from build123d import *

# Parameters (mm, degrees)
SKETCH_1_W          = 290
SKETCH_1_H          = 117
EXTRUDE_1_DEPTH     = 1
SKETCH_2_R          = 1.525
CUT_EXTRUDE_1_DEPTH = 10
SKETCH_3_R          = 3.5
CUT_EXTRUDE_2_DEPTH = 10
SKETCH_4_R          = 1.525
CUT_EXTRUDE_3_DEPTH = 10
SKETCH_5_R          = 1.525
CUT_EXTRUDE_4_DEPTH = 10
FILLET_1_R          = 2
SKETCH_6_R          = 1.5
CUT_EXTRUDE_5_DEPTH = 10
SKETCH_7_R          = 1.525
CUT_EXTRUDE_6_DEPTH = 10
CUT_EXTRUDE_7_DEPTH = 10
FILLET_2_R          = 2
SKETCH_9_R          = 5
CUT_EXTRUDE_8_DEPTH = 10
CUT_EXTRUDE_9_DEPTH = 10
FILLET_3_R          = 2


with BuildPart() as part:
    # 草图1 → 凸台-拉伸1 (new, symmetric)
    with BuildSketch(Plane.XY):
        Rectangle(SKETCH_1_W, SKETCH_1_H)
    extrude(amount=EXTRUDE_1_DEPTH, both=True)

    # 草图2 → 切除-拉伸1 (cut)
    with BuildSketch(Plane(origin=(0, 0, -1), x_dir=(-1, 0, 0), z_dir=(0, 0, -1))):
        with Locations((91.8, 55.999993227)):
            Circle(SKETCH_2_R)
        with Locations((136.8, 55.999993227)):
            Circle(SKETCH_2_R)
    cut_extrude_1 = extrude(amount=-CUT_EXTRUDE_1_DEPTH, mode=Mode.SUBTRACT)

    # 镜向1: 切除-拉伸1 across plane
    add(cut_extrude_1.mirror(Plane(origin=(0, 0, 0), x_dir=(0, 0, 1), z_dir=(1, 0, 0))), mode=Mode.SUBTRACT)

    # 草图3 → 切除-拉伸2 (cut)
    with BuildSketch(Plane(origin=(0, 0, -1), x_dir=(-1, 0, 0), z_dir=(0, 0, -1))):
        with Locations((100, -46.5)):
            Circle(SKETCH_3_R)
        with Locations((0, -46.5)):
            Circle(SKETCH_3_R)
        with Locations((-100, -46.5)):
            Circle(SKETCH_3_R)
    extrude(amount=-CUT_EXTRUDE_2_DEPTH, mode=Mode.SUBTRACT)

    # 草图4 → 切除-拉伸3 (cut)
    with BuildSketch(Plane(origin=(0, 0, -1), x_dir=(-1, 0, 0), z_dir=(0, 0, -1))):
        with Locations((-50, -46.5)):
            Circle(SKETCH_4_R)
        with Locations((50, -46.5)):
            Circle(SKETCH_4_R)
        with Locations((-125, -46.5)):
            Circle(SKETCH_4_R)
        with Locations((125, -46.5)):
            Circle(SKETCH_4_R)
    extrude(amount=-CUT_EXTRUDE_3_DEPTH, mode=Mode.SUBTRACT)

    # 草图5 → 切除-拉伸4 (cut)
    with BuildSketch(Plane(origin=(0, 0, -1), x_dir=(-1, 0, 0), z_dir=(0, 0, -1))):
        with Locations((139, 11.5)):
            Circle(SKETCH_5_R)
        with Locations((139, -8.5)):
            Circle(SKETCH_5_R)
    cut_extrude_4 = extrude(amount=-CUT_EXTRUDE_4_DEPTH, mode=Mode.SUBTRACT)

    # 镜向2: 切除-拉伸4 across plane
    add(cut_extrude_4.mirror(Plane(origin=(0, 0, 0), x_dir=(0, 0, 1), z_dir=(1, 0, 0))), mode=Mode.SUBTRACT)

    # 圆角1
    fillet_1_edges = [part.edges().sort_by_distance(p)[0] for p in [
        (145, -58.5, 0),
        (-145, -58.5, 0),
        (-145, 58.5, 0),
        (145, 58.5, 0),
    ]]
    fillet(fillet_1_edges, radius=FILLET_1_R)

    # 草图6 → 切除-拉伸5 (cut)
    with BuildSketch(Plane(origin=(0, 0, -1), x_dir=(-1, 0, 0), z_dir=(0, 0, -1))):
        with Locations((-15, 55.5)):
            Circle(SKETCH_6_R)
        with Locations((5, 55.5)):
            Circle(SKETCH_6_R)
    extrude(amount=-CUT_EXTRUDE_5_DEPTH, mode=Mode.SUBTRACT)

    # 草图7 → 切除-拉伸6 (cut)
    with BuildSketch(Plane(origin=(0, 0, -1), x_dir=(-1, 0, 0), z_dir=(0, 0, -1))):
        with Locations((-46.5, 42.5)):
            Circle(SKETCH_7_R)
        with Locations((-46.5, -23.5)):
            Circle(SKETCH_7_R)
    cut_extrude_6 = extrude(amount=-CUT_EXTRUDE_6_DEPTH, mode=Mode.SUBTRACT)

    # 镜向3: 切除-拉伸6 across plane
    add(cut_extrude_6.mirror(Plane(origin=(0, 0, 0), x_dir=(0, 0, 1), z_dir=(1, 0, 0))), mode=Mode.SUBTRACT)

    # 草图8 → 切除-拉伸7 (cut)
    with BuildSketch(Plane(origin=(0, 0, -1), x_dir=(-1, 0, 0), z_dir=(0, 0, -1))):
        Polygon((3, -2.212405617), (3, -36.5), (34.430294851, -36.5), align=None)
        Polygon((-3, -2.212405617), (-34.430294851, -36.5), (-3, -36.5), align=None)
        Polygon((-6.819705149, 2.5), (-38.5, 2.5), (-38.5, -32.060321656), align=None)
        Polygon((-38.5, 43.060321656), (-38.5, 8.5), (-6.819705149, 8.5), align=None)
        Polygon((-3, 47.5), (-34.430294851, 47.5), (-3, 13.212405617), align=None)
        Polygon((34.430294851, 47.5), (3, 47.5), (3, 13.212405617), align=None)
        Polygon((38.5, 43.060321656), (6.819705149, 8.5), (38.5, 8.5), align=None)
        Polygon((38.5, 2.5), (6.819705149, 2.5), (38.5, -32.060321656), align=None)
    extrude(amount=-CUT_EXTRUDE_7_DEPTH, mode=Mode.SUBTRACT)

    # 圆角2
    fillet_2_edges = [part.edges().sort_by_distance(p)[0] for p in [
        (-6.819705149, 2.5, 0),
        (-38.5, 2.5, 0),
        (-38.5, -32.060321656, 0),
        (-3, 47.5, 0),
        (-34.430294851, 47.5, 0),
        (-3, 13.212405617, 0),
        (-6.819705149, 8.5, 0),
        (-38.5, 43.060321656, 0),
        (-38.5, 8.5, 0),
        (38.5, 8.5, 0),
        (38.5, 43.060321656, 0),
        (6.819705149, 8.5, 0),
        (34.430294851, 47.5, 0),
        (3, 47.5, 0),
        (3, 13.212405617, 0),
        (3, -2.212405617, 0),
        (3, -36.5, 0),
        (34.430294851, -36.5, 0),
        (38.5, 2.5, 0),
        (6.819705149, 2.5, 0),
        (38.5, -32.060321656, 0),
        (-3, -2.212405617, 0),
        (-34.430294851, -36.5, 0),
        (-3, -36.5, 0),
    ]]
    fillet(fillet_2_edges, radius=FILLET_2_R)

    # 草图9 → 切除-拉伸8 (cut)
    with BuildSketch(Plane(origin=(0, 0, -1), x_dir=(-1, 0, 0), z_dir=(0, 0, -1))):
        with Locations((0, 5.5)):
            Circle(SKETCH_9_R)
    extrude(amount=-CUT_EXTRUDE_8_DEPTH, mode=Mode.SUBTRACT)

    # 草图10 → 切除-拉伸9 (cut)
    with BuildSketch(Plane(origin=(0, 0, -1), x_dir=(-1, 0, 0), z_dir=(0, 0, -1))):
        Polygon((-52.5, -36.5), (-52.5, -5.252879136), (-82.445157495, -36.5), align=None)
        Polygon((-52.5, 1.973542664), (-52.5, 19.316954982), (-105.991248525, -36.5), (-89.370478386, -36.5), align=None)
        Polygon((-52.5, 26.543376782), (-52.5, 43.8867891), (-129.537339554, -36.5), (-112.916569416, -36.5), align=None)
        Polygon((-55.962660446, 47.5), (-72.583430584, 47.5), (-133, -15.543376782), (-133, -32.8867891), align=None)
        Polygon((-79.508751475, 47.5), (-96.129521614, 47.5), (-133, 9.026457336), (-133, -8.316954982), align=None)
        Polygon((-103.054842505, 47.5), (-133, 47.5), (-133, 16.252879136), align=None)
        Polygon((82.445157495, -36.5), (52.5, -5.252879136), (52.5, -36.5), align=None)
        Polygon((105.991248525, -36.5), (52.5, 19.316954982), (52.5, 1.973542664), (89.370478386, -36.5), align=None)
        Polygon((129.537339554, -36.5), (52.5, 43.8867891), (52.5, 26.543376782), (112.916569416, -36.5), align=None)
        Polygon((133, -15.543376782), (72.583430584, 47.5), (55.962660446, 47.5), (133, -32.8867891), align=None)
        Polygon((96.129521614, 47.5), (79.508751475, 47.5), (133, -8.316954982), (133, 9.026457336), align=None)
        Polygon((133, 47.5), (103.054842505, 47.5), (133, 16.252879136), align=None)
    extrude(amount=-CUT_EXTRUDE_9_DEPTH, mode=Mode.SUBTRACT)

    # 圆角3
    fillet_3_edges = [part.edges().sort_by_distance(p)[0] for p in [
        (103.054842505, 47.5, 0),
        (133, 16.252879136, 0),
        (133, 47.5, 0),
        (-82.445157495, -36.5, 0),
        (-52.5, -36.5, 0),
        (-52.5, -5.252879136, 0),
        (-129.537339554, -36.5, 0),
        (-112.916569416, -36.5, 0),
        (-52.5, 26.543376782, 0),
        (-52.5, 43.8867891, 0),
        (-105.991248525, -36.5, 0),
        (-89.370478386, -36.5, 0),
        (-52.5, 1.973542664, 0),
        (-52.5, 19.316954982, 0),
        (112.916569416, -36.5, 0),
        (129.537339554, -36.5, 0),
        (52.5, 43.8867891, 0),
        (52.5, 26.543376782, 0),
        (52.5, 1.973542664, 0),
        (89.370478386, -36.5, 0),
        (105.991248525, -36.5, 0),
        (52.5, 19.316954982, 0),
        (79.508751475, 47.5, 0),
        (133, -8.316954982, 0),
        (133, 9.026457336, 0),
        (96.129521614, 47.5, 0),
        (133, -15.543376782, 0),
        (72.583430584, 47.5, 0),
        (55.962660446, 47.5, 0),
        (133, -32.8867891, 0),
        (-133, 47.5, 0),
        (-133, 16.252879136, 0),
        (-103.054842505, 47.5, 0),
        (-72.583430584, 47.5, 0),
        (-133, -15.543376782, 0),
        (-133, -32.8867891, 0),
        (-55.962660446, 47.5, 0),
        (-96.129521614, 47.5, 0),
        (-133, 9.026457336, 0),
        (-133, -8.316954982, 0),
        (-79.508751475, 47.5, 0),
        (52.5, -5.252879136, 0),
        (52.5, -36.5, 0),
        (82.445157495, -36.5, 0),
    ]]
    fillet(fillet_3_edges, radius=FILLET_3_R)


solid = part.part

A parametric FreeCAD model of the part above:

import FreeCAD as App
import Part
import Sketcher


def edges_at(feature, points):
    """Names of the edges that pass closest to the given points."""
    edges = feature.Shape.Edges
    near = lambda p: min(range(len(edges)), key=lambda i: edges[i].distToShape(Part.Vertex(*p))[0])
    return sorted({f"Edge{near(p) + 1}" for p in points})


def add_polygon(sketch, points):
    """Adds a closed chain of lines whose ends are joined by coincident constraints."""
    first, n = sketch.GeometryCount, len(points)
    for a, b in zip(points, points[1:] + points[:1]):
        sketch.addGeometry(Part.LineSegment(App.Vector(*a, 0), App.Vector(*b, 0)), False)
    for i in range(n):
        sketch.addConstraint(Sketcher.Constraint("Coincident", first + i, 2, first + (i + 1) % n, 1))

doc = App.newDocument("Part")
params = doc.addObject("Spreadsheet::Sheet", "Params")
for row, (alias, value) in enumerate([
    ("sketch1_width", "290 mm"),
    ("sketch1_height", "117 mm"),
    ("pad1_length", "2 mm"),
    ("sketch2_diameter", "3.05 mm"),
    ("pocket1_length", "10 mm"),
    ("sketch3_diameter", "7 mm"),
    ("pocket2_length", "10 mm"),
    ("sketch4_diameter", "3.05 mm"),
    ("pocket3_length", "10 mm"),
    ("sketch5_diameter", "3.05 mm"),
    ("pocket4_length", "10 mm"),
    ("fillet_radius", "2 mm"),
    ("sketch6_diameter", "3 mm"),
    ("pocket5_length", "10 mm"),
    ("sketch7_diameter", "3.05 mm"),
    ("pocket6_length", "10 mm"),
    ("pocket7_length", "10 mm"),
    ("fillet2_radius", "2 mm"),
    ("sketch9_diameter", "10 mm"),
    ("pocket8_length", "10 mm"),
    ("pocket9_length", "10 mm"),
    ("fillet3_radius", "2 mm"),
], start=1):
    params.set(f"A{row}", alias)
    params.set(f"B{row}", "=" + value)
    params.setAlias(f"B{row}", alias)

body = doc.addObject("PartDesign::Body", "Body")

# Sketch on XY plane
sketch1 = doc.addObject("Sketcher::SketchObject", "Sketch")
body.addObject(sketch1)
sketch1.AttachmentSupport = (doc.XY_Plane, [""])
sketch1.MapMode = "FlatFace"
add_polygon(sketch1, [(-145, 58.5), (-145, -58.5), (145, -58.5), (145, 58.5)])  # lines 0-3
sketch1.addConstraint(Sketcher.Constraint("Vertical", 0))
sketch1.addConstraint(Sketcher.Constraint("Horizontal", 1))
sketch1.addConstraint(Sketcher.Constraint("Vertical", 2))
sketch1.addConstraint(Sketcher.Constraint("Horizontal", 3))
sketch1.addConstraint(Sketcher.Constraint("Symmetric", 0, 2, 2, 2, -1, 1))
sketch1.addConstraint(Sketcher.Constraint("DistanceX", 1, 1, 1, 2, 290.0))
sketch1.addConstraint(Sketcher.Constraint("DistanceY", 0, 2, 0, 1, 117.0))
sketch1.setExpression("Constraints[9]", "Params.sketch1_width")
sketch1.setExpression("Constraints[10]", "Params.sketch1_height")
pad1 = doc.addObject("PartDesign::Pad", "Pad")
body.addObject(pad1)
pad1.Profile = sketch1
pad1.setExpression("Length", "Params.pad1_length")
pad1.Midplane = True

# Sketch on XY plane
sketch2 = doc.addObject("Sketcher::SketchObject", "Sketch001")
body.addObject(sketch2)
sketch2.AttachmentSupport = (doc.XY_Plane, [""])
sketch2.MapMode = "FlatFace"
sketch2.AttachmentOffset = App.Placement(App.Vector(0, 0, -1), App.Rotation())
sketch2.addGeometry(Part.Circle(App.Vector(-91.8, 55.999993, 0), App.Vector(0, 0, 1), 1.525), False)
sketch2.addGeometry(Part.Circle(App.Vector(-136.8, 55.999993, 0), App.Vector(0, 0, 1), 1.525), False)
sketch2.addConstraint(Sketcher.Constraint("Equal", 0, 1))
sketch2.addConstraint(Sketcher.Constraint("Horizontal", 0, 3, 1, 3))
sketch2.addConstraint(Sketcher.Constraint("Diameter", 0, 3.05))
sketch2.addConstraint(Sketcher.Constraint("DistanceX", 1, 3, 0, 3, 45.0))
sketch2.addConstraint(Sketcher.Constraint("DistanceX", 0, 3, -1, 1, 91.8))
sketch2.addConstraint(Sketcher.Constraint("DistanceY", -1, 1, 0, 3, 55.999993))
sketch2.setExpression("Constraints[2]", "Params.sketch2_diameter")
pocket1 = doc.addObject("PartDesign::Pocket", "Pocket")
body.addObject(pocket1)
pocket1.Profile = sketch2
pocket1.setExpression("Length", "Params.pocket1_length")
pocket1.Reversed = True
doc.recompute()

mirrored = doc.addObject("PartDesign::Mirrored", "Mirrored")
body.addObject(mirrored)
mirrored.Originals = [pocket1]
mirrored.MirrorPlane = (doc.YZ_Plane, [""])
body.Tip = mirrored

# Sketch on XY plane
sketch3 = doc.addObject("Sketcher::SketchObject", "Sketch002")
body.addObject(sketch3)
sketch3.AttachmentSupport = (doc.XY_Plane, [""])
sketch3.MapMode = "FlatFace"
sketch3.AttachmentOffset = App.Placement(App.Vector(0, 0, -1), App.Rotation())
sketch3.addGeometry(Part.Circle(App.Vector(-100, -46.5, 0), App.Vector(0, 0, 1), 3.5), False)
sketch3.addGeometry(Part.Circle(App.Vector(0, -46.5, 0), App.Vector(0, 0, 1), 3.5), False)
sketch3.addGeometry(Part.Circle(App.Vector(100, -46.5, 0), App.Vector(0, 0, 1), 3.5), False)
sketch3.addConstraint(Sketcher.Constraint("Equal", 0, 1))
sketch3.addConstraint(Sketcher.Constraint("Equal", 1, 2))
sketch3.addConstraint(Sketcher.Constraint("Symmetric", 0, 3, 2, 3, -2))
sketch3.addConstraint(Sketcher.Constraint("PointOnObject", 1, 3, -2))
sketch3.addConstraint(Sketcher.Constraint("Horizontal", 0, 3, 1, 3))
sketch3.addConstraint(Sketcher.Constraint("Diameter", 0, 7.0))
sketch3.addConstraint(Sketcher.Constraint("DistanceX", 0, 3, -1, 1, 100.0))
sketch3.addConstraint(Sketcher.Constraint("DistanceY", 0, 3, -1, 1, 46.5))
sketch3.setExpression("Constraints[5]", "Params.sketch3_diameter")
pocket2 = doc.addObject("PartDesign::Pocket", "Pocket001")
body.addObject(pocket2)
pocket2.Profile = sketch3
pocket2.setExpression("Length", "Params.pocket2_length")
pocket2.Reversed = True

# Sketch on XY plane
sketch4 = doc.addObject("Sketcher::SketchObject", "Sketch003")
body.addObject(sketch4)
sketch4.AttachmentSupport = (doc.XY_Plane, [""])
sketch4.MapMode = "FlatFace"
sketch4.AttachmentOffset = App.Placement(App.Vector(0, 0, -1), App.Rotation())
sketch4.addGeometry(Part.Circle(App.Vector(50, -46.5, 0), App.Vector(0, 0, 1), 1.525), False)
sketch4.addGeometry(Part.Circle(App.Vector(-50, -46.5, 0), App.Vector(0, 0, 1), 1.525), False)
sketch4.addGeometry(Part.Circle(App.Vector(125, -46.5, 0), App.Vector(0, 0, 1), 1.525), False)
sketch4.addGeometry(Part.Circle(App.Vector(-125, -46.5, 0), App.Vector(0, 0, 1), 1.525), False)
sketch4.addConstraint(Sketcher.Constraint("Equal", 0, 1))
sketch4.addConstraint(Sketcher.Constraint("Equal", 1, 2))
sketch4.addConstraint(Sketcher.Constraint("Equal", 2, 3))
sketch4.addConstraint(Sketcher.Constraint("Symmetric", 0, 3, 1, 3, -2))
sketch4.addConstraint(Sketcher.Constraint("Symmetric", 2, 3, 3, 3, -2))
sketch4.addConstraint(Sketcher.Constraint("Horizontal", 1, 3, 2, 3))
sketch4.addConstraint(Sketcher.Constraint("Diameter", 0, 3.05))
sketch4.addConstraint(Sketcher.Constraint("DistanceX", -1, 1, 0, 3, 50.0))
sketch4.addConstraint(Sketcher.Constraint("DistanceX", -1, 1, 2, 3, 125.0))
sketch4.addConstraint(Sketcher.Constraint("DistanceY", 0, 3, -1, 1, 46.5))
sketch4.setExpression("Constraints[6]", "Params.sketch4_diameter")
pocket3 = doc.addObject("PartDesign::Pocket", "Pocket002")
body.addObject(pocket3)
pocket3.Profile = sketch4
pocket3.setExpression("Length", "Params.pocket3_length")
pocket3.Reversed = True

# Sketch on XY plane
sketch5 = doc.addObject("Sketcher::SketchObject", "Sketch004")
body.addObject(sketch5)
sketch5.AttachmentSupport = (doc.XY_Plane, [""])
sketch5.MapMode = "FlatFace"
sketch5.AttachmentOffset = App.Placement(App.Vector(0, 0, -1), App.Rotation())
sketch5.addGeometry(Part.Circle(App.Vector(-139, 11.5, 0), App.Vector(0, 0, 1), 1.525), False)
sketch5.addGeometry(Part.Circle(App.Vector(-139, -8.5, 0), App.Vector(0, 0, 1), 1.525), False)
sketch5.addConstraint(Sketcher.Constraint("Equal", 0, 1))
sketch5.addConstraint(Sketcher.Constraint("Vertical", 0, 3, 1, 3))
sketch5.addConstraint(Sketcher.Constraint("Diameter", 0, 3.05))
sketch5.addConstraint(Sketcher.Constraint("DistanceX", 0, 3, -1, 1, 139.0))
sketch5.addConstraint(Sketcher.Constraint("DistanceY", 1, 3, 0, 3, 20.0))
sketch5.addConstraint(Sketcher.Constraint("DistanceY", -1, 1, 0, 3, 11.5))
sketch5.setExpression("Constraints[2]", "Params.sketch5_diameter")
pocket4 = doc.addObject("PartDesign::Pocket", "Pocket003")
body.addObject(pocket4)
pocket4.Profile = sketch5
pocket4.setExpression("Length", "Params.pocket4_length")
pocket4.Reversed = True
doc.recompute()

mirrored2 = doc.addObject("PartDesign::Mirrored", "Mirrored001")
body.addObject(mirrored2)
mirrored2.Originals = [pocket4]
mirrored2.MirrorPlane = (doc.YZ_Plane, [""])
body.Tip = mirrored2
doc.recompute()

fillet = doc.addObject("PartDesign::Fillet", "Fillet")
body.addObject(fillet)
fillet.Base = (mirrored2, edges_at(mirrored2, [
    (145, -58.5, 0),
    (-145, -58.5, 0),
    (-145, 58.5, 0),
    (145, 58.5, 0),
]))
fillet.setExpression("Radius", "Params.fillet_radius")

# Sketch on XY plane
sketch6 = doc.addObject("Sketcher::SketchObject", "Sketch005")
body.addObject(sketch6)
sketch6.AttachmentSupport = (doc.XY_Plane, [""])
sketch6.MapMode = "FlatFace"
sketch6.AttachmentOffset = App.Placement(App.Vector(0, 0, -1), App.Rotation())
sketch6.addGeometry(Part.Circle(App.Vector(15, 55.5, 0), App.Vector(0, 0, 1), 1.5), False)
sketch6.addGeometry(Part.Circle(App.Vector(-5, 55.5, 0), App.Vector(0, 0, 1), 1.5), False)
sketch6.addConstraint(Sketcher.Constraint("Equal", 0, 1))
sketch6.addConstraint(Sketcher.Constraint("Horizontal", 0, 3, 1, 3))
sketch6.addConstraint(Sketcher.Constraint("Diameter", 0, 3.0))
sketch6.addConstraint(Sketcher.Constraint("DistanceX", -1, 1, 0, 3, 15.0))
sketch6.addConstraint(Sketcher.Constraint("DistanceX", 1, 3, -1, 1, 5.0))
sketch6.addConstraint(Sketcher.Constraint("DistanceY", -1, 1, 0, 3, 55.5))
sketch6.setExpression("Constraints[2]", "Params.sketch6_diameter")
pocket5 = doc.addObject("PartDesign::Pocket", "Pocket004")
body.addObject(pocket5)
pocket5.Profile = sketch6
pocket5.setExpression("Length", "Params.pocket5_length")
pocket5.Reversed = True

# Sketch on XY plane
sketch7 = doc.addObject("Sketcher::SketchObject", "Sketch006")
body.addObject(sketch7)
sketch7.AttachmentSupport = (doc.XY_Plane, [""])
sketch7.MapMode = "FlatFace"
sketch7.AttachmentOffset = App.Placement(App.Vector(0, 0, -1), App.Rotation())
sketch7.addGeometry(Part.Circle(App.Vector(46.5, 42.5, 0), App.Vector(0, 0, 1), 1.525), False)
sketch7.addGeometry(Part.Circle(App.Vector(46.5, -23.5, 0), App.Vector(0, 0, 1), 1.525), False)
sketch7.addConstraint(Sketcher.Constraint("Equal", 0, 1))
sketch7.addConstraint(Sketcher.Constraint("Vertical", 0, 3, 1, 3))
sketch7.addConstraint(Sketcher.Constraint("Diameter", 0, 3.05))
sketch7.addConstraint(Sketcher.Constraint("DistanceY", 1, 3, 0, 3, 66.0))
sketch7.addConstraint(Sketcher.Constraint("DistanceX", -1, 1, 0, 3, 46.5))
sketch7.addConstraint(Sketcher.Constraint("DistanceY", -1, 1, 0, 3, 42.5))
sketch7.setExpression("Constraints[2]", "Params.sketch7_diameter")
pocket6 = doc.addObject("PartDesign::Pocket", "Pocket005")
body.addObject(pocket6)
pocket6.Profile = sketch7
pocket6.setExpression("Length", "Params.pocket6_length")
pocket6.Reversed = True
doc.recompute()

mirrored3 = doc.addObject("PartDesign::Mirrored", "Mirrored002")
body.addObject(mirrored3)
mirrored3.Originals = [pocket6]
mirrored3.MirrorPlane = (doc.YZ_Plane, [""])
body.Tip = mirrored3

# Sketch on XY plane
sketch8 = doc.addObject("Sketcher::SketchObject", "Sketch007")
body.addObject(sketch8)
sketch8.AttachmentSupport = (doc.XY_Plane, [""])
sketch8.MapMode = "FlatFace"
sketch8.AttachmentOffset = App.Placement(App.Vector(0, 0, -1), App.Rotation())
add_polygon(sketch8, [(-3, -2.212406), (-3, -36.5), (-34.430295, -36.5)])  # lines 0-2
add_polygon(sketch8, [(3, -2.212406), (34.430295, -36.5), (3, -36.5)])  # lines 3-5
add_polygon(sketch8, [(6.819705, 2.5), (38.5, 2.5), (38.5, -32.060322)])  # lines 6-8
add_polygon(sketch8, [(38.5, 43.060322), (38.5, 8.5), (6.819705, 8.5)])  # lines 9-11
add_polygon(sketch8, [(3, 47.5), (34.430295, 47.5), (3, 13.212406)])  # lines 12-14
add_polygon(sketch8, [(-34.430295, 47.5), (-3, 47.5), (-3, 13.212406)])  # lines 15-17
add_polygon(sketch8, [(-38.5, 43.060322), (-6.819705, 8.5), (-38.5, 8.5)])  # lines 18-20
add_polygon(sketch8, [(-38.5, 2.5), (-6.819705, 2.5), (-38.5, -32.060322)])  # lines 21-23
sketch8.addConstraint(Sketcher.Constraint("Vertical", 0))
sketch8.addConstraint(Sketcher.Constraint("Horizontal", 1))
sketch8.addConstraint(Sketcher.Constraint("Horizontal", 4))
sketch8.addConstraint(Sketcher.Constraint("Vertical", 5))
sketch8.addConstraint(Sketcher.Constraint("Horizontal", 6))
sketch8.addConstraint(Sketcher.Constraint("Vertical", 7))
sketch8.addConstraint(Sketcher.Constraint("Vertical", 9))
sketch8.addConstraint(Sketcher.Constraint("Horizontal", 10))
sketch8.addConstraint(Sketcher.Constraint("Horizontal", 12))
sketch8.addConstraint(Sketcher.Constraint("Vertical", 14))
sketch8.addConstraint(Sketcher.Constraint("Horizontal", 15))
sketch8.addConstraint(Sketcher.Constraint("Vertical", 16))
sketch8.addConstraint(Sketcher.Constraint("Horizontal", 19))
sketch8.addConstraint(Sketcher.Constraint("Vertical", 20))
sketch8.addConstraint(Sketcher.Constraint("Horizontal", 21))
sketch8.addConstraint(Sketcher.Constraint("Vertical", 23))
sketch8.addConstraint(Sketcher.Constraint("Symmetric", 1, 2, 3, 2, -2))
sketch8.addConstraint(Sketcher.Constraint("Symmetric", 2, 2, 5, 2, -2))
sketch8.addConstraint(Sketcher.Constraint("Symmetric", 14, 2, 15, 2, -2))
sketch8.addConstraint(Sketcher.Constraint("Symmetric", 10, 2, 18, 2, -2))
sketch8.addConstraint(Sketcher.Constraint("Symmetric", 11, 2, 20, 2, -2))
sketch8.addConstraint(Sketcher.Constraint("Symmetric", 8, 2, 21, 2, -2))
sketch8.addConstraint(Sketcher.Constraint("Symmetric", 7, 2, 22, 2, -2))
sketch8.addConstraint(Sketcher.Constraint("Parallel", 3, 8))
sketch8.addConstraint(Sketcher.Constraint("Parallel", 2, 11))
sketch8.addConstraint(Sketcher.Constraint("Parallel", 11, 13))
sketch8.addConstraint(Sketcher.Constraint("Parallel", 8, 17))
sketch8.addConstraint(Sketcher.Constraint("Horizontal", 13, 2, 16, 2))
sketch8.addConstraint(Sketcher.Constraint("Vertical", 7, 2, 9, 2))
sketch8.addConstraint(Sketcher.Constraint("Vertical", 8, 2, 10, 2))
sketch8.addConstraint(Sketcher.Constraint("Vertical", 3, 2, 12, 2))
sketch8.addConstraint(Sketcher.Constraint("Vertical", 5, 2, 13, 2))
sketch8.addConstraint(Sketcher.Constraint("DistanceX", 0, 2, -1, 1, 3.0))
sketch8.addConstraint(Sketcher.Constraint("DistanceY", 3, 2, 6, 2, 39.0))
sketch8.addConstraint(Sketcher.Constraint("DistanceY", 6, 2, 9, 2, 6.0))
sketch8.addConstraint(Sketcher.Constraint("DistanceY", 9, 2, 12, 2, 39.0))
sketch8.addConstraint(Sketcher.Constraint("DistanceY", 0, 2, -1, 1, 36.5))
sketch8.addConstraint(Sketcher.Constraint("DistanceX", -1, 1, 6, 2, 38.5))
sketch8.addConstraint(Sketcher.Constraint("DistanceX", 17, 2, 10, 2, 41.25))
sketch8.addConstraint(Sketcher.Constraint("DistanceY", 7, 2, 7, 1, 34.560322))
sketch8.addConstraint(Sketcher.Constraint("Distance", 8, 46.88344))
pocket7 = doc.addObject("PartDesign::Pocket", "Pocket006")
body.addObject(pocket7)
pocket7.Profile = sketch8
pocket7.setExpression("Length", "Params.pocket7_length")
pocket7.Reversed = True
doc.recompute()

fillet2 = doc.addObject("PartDesign::Fillet", "Fillet001")
body.addObject(fillet2)
fillet2.Base = (pocket7, edges_at(pocket7, [
    (-6.82, 2.5, 0),
    (-38.5, 2.5, 0),
    (-38.5, -32.06, 0),
    (-3, 47.5, 0),
    (-34.43, 47.5, 0),
    (-3, 13.212, 0),
    (-6.82, 8.5, 0),
    (-38.5, 43.06, 0),
    (-38.5, 8.5, 0),
    (38.5, 8.5, 0),
    (38.5, 43.06, 0),
    (6.82, 8.5, 0),
    (34.43, 47.5, 0),
    (3, 47.5, 0),
    (3, 13.212, 0),
    (3, -2.212, 0),
    (3, -36.5, 0),
    (34.43, -36.5, 0),
    (38.5, 2.5, 0),
    (6.82, 2.5, 0),
    (38.5, -32.06, 0),
    (-3, -2.212, 0),
    (-34.43, -36.5, 0),
    (-3, -36.5, 0),
]))
fillet2.setExpression("Radius", "Params.fillet2_radius")

# Sketch on XY plane
sketch9 = doc.addObject("Sketcher::SketchObject", "Sketch008")
body.addObject(sketch9)
sketch9.AttachmentSupport = (doc.XY_Plane, [""])
sketch9.MapMode = "FlatFace"
sketch9.AttachmentOffset = App.Placement(App.Vector(0, 0, -1), App.Rotation())
sketch9.addGeometry(Part.Circle(App.Vector(0, 5.5, 0), App.Vector(0, 0, 1), 5), False)
sketch9.addConstraint(Sketcher.Constraint("PointOnObject", 0, 3, -2))
sketch9.addConstraint(Sketcher.Constraint("Diameter", 0, 10.0))
sketch9.addConstraint(Sketcher.Constraint("DistanceY", -1, 1, 0, 3, 5.5))
sketch9.setExpression("Constraints[1]", "Params.sketch9_diameter")
pocket8 = doc.addObject("PartDesign::Pocket", "Pocket007")
body.addObject(pocket8)
pocket8.Profile = sketch9
pocket8.setExpression("Length", "Params.pocket8_length")
pocket8.Reversed = True

# Sketch on XY plane
sketch10 = doc.addObject("Sketcher::SketchObject", "Sketch009")
body.addObject(sketch10)
sketch10.AttachmentSupport = (doc.XY_Plane, [""])
sketch10.MapMode = "FlatFace"
sketch10.AttachmentOffset = App.Placement(App.Vector(0, 0, -1), App.Rotation())
add_polygon(sketch10, [(52.5, -36.5), (52.5, -5.252879), (82.445157, -36.5)])  # lines 0-2
add_polygon(sketch10, [(52.5, 1.973543), (52.5, 19.316955), (105.991249, -36.5), (89.370478, -36.5)])  # lines 3-6
add_polygon(sketch10, [(52.5, 26.543377), (52.5, 43.886789), (129.53734, -36.5), (112.916569, -36.5)])  # lines 7-10
add_polygon(sketch10, [(55.96266, 47.5), (72.583431, 47.5), (133, -15.543377), (133, -32.886789)])  # lines 11-14
add_polygon(sketch10, [(79.508751, 47.5), (96.129522, 47.5), (133, 9.026457), (133, -8.316955)])  # lines 15-18
add_polygon(sketch10, [(103.054843, 47.5), (133, 47.5), (133, 16.252879)])  # lines 19-21
add_polygon(sketch10, [(-82.445157, -36.5), (-52.5, -5.252879), (-52.5, -36.5)])  # lines 22-24
add_polygon(sketch10, [(-105.991249, -36.5), (-52.5, 19.316955), (-52.5, 1.973543), (-89.370478, -36.5)])  # lines 25-28
add_polygon(sketch10, [(-129.53734, -36.5), (-52.5, 43.886789), (-52.5, 26.543377), (-112.916569, -36.5)])  # lines 29-32
add_polygon(sketch10, [(-133, -15.543377), (-72.583431, 47.5), (-55.96266, 47.5), (-133, -32.886789)])  # lines 33-36
add_polygon(sketch10, [(-96.129522, 47.5), (-79.508751, 47.5), (-133, -8.316955), (-133, 9.026457)])  # lines 37-40
add_polygon(sketch10, [(-133, 47.5), (-103.054843, 47.5), (-133, 16.252879)])  # lines 41-43
sketch10.addConstraint(Sketcher.Constraint("Vertical", 0))
sketch10.addConstraint(Sketcher.Constraint("Horizontal", 2))
sketch10.addConstraint(Sketcher.Constraint("Vertical", 3))
sketch10.addConstraint(Sketcher.Constraint("Horizontal", 5))
sketch10.addConstraint(Sketcher.Constraint("Vertical", 7))
sketch10.addConstraint(Sketcher.Constraint("Horizontal", 9))
sketch10.addConstraint(Sketcher.Constraint("Horizontal", 11))
sketch10.addConstraint(Sketcher.Constraint("Vertical", 13))
sketch10.addConstraint(Sketcher.Constraint("Horizontal", 15))
sketch10.addConstraint(Sketcher.Constraint("Vertical", 17))
sketch10.addConstraint(Sketcher.Constraint("Horizontal", 19))
sketch10.addConstraint(Sketcher.Constraint("Vertical", 20))
sketch10.addConstraint(Sketcher.Constraint("Vertical", 23))
sketch10.addConstraint(Sketcher.Constraint("Horizontal", 24))
sketch10.addConstraint(Sketcher.Constraint("Vertical", 26))
sketch10.addConstraint(Sketcher.Constraint("Horizontal", 28))
sketch10.addConstraint(Sketcher.Constraint("Vertical", 30))
sketch10.addConstraint(Sketcher.Constraint("Horizontal", 32))
sketch10.addConstraint(Sketcher.Constraint("Horizontal", 34))
sketch10.addConstraint(Sketcher.Constraint("Vertical", 36))
sketch10.addConstraint(Sketcher.Constraint("Horizontal", 37))
sketch10.addConstraint(Sketcher.Constraint("Vertical", 39))
sketch10.addConstraint(Sketcher.Constraint("Horizontal", 41))
sketch10.addConstraint(Sketcher.Constraint("Vertical", 43))
sketch10.addConstraint(Sketcher.Constraint("Symmetric", 0, 2, 22, 2, -2))
sketch10.addConstraint(Sketcher.Constraint("Symmetric", 1, 2, 24, 2, -2))
sketch10.addConstraint(Sketcher.Constraint("Symmetric", 3, 2, 25, 2, -2))
sketch10.addConstraint(Sketcher.Constraint("Symmetric", 5, 2, 27, 2, -2))
sketch10.addConstraint(Sketcher.Constraint("Symmetric", 7, 2, 29, 2, -2))
sketch10.addConstraint(Sketcher.Constraint("Symmetric", 9, 2, 31, 2, -2))
sketch10.addConstraint(Sketcher.Constraint("Symmetric", 11, 2, 33, 2, -2))
sketch10.addConstraint(Sketcher.Constraint("Symmetric", 13, 2, 35, 2, -2))
sketch10.addConstraint(Sketcher.Constraint("Symmetric", 18, 2, 37, 2, -2))
sketch10.addConstraint(Sketcher.Constraint("Symmetric", 17, 2, 38, 2, -2))
sketch10.addConstraint(Sketcher.Constraint("Symmetric", 21, 2, 41, 2, -2))
sketch10.addConstraint(Sketcher.Constraint("Symmetric", 20, 2, 42, 2, -2))
sketch10.addConstraint(Sketcher.Constraint("Parallel", 1, 4))
sketch10.addConstraint(Sketcher.Constraint("Parallel", 4, 6))
sketch10.addConstraint(Sketcher.Constraint("Parallel", 6, 8))
sketch10.addConstraint(Sketcher.Constraint("Parallel", 8, 10))
sketch10.addConstraint(Sketcher.Constraint("Parallel", 10, 12))
sketch10.addConstraint(Sketcher.Constraint("Parallel", 12, 14))
sketch10.addConstraint(Sketcher.Constraint("Parallel", 14, 16))
sketch10.addConstraint(Sketcher.Constraint("Parallel", 16, 18))
sketch10.addConstraint(Sketcher.Constraint("Parallel", 18, 21))
sketch10.addConstraint(Sketcher.Constraint("Parallel", 22, 25))
sketch10.addConstraint(Sketcher.Constraint("Parallel", 25, 27))
sketch10.addConstraint(Sketcher.Constraint("Parallel", 27, 29))
sketch10.addConstraint(Sketcher.Constraint("Parallel", 29, 31))
sketch10.addConstraint(Sketcher.Constraint("Parallel", 31, 33))
sketch10.addConstraint(Sketcher.Constraint("Parallel", 33, 35))
sketch10.addConstraint(Sketcher.Constraint("Parallel", 38, 40))
sketch10.addConstraint(Sketcher.Constraint("Horizontal", 2, 2, 4, 2))
sketch10.addConstraint(Sketcher.Constraint("Horizontal", 5, 2, 8, 2))
sketch10.addConstraint(Sketcher.Constraint("Horizontal", 14, 2, 15, 2))
sketch10.addConstraint(Sketcher.Constraint("Horizontal", 18, 2, 19, 2))
sketch10.addConstraint(Sketcher.Constraint("Horizontal", 16, 2, 39, 2))
sketch10.addConstraint(Sketcher.Constraint("Vertical", 2, 2, 3, 2))
sketch10.addConstraint(Sketcher.Constraint("Vertical", 6, 2, 7, 2))
sketch10.addConstraint(Sketcher.Constraint("Vertical", 13, 2, 16, 2))
sketch10.addConstraint(Sketcher.Constraint("Vertical", 17, 2, 19, 2))
sketch10.addConstraint(Sketcher.Constraint("Equal", 5, 9))
sketch10.addConstraint(Sketcher.Constraint("Equal", 9, 11))
sketch10.addConstraint(Sketcher.Constraint("Equal", 11, 15))
sketch10.addConstraint(Sketcher.Constraint("Equal", 2, 19))
sketch10.addConstraint(Sketcher.Constraint("Equal", 10, 12))
sketch10.addConstraint(Sketcher.Constraint("Equal", 6, 16))
sketch10.addConstraint(Sketcher.Constraint("DistanceX", -1, 1, 12, 2, 133.0))
sketch10.addConstraint(Sketcher.Constraint("DistanceX", 22, 2, 0, 2, 105.0))
sketch10.addConstraint(Sketcher.Constraint("DistanceY", 1, 2, -1, 1, 36.5))
sketch10.addConstraint(Sketcher.Constraint("DistanceY", -1, 1, 11, 2, 47.5))
sketch10.addConstraint(Sketcher.Constraint("DistanceX", 5, 2, 5, 1, 16.62077))
sketch10.addConstraint(Sketcher.Constraint("DistanceY", 0, 1, 0, 2, 31.247121))
sketch10.addConstraint(Sketcher.Constraint("Distance", 8, 111.340862))
sketch10.addConstraint(Sketcher.Constraint("DistanceX", 2, 2, 2, 1, 29.945157))
sketch10.addConstraint(Sketcher.Constraint("DistanceX", -1, 1, 4, 2, 105.991249))
pocket9 = doc.addObject("PartDesign::Pocket", "Pocket008")
body.addObject(pocket9)
pocket9.Profile = sketch10
pocket9.setExpression("Length", "Params.pocket9_length")
pocket9.Reversed = True
doc.recompute()

fillet3 = doc.addObject("PartDesign::Fillet", "Fillet002")
body.addObject(fillet3)
fillet3.Base = (pocket9, edges_at(pocket9, [
    (103.055, 47.5, 0),
    (133, 16.253, 0),
    (133, 47.5, 0),
    (-82.445, -36.5, 0),
    (-52.5, -36.5, 0),
    (-52.5, -5.253, 0),
    (-129.537, -36.5, 0),
    (-112.917, -36.5, 0),
    (-52.5, 26.543, 0),
    (-52.5, 43.887, 0),
    (-105.991, -36.5, 0),
    (-89.37, -36.5, 0),
    (-52.5, 1.974, 0),
    (-52.5, 19.317, 0),
    (112.917, -36.5, 0),
    (129.537, -36.5, 0),
    (52.5, 43.887, 0),
    (52.5, 26.543, 0),
    (52.5, 1.974, 0),
    (89.37, -36.5, 0),
    (105.991, -36.5, 0),
    (52.5, 19.317, 0),
    (79.509, 47.5, 0),
    (133, -8.317, 0),
    (133, 9.026, 0),
    (96.13, 47.5, 0),
    (133, -15.543, 0),
    (72.583, 47.5, 0),
    (55.963, 47.5, 0),
    (133, -32.887, 0),
    (-133, 47.5, 0),
    (-133, 16.253, 0),
    (-103.055, 47.5, 0),
    (-72.583, 47.5, 0),
    (-133, -15.543, 0),
    (-133, -32.887, 0),
    (-55.963, 47.5, 0),
    (-96.13, 47.5, 0),
    (-133, 9.026, 0),
    (-133, -8.317, 0),
    (-79.509, 47.5, 0),
    (52.5, -5.253, 0),
    (52.5, -36.5, 0),
    (82.445, -36.5, 0),
]))
fillet3.setExpression("Radius", "Params.fillet3_radius")

doc.recompute()
